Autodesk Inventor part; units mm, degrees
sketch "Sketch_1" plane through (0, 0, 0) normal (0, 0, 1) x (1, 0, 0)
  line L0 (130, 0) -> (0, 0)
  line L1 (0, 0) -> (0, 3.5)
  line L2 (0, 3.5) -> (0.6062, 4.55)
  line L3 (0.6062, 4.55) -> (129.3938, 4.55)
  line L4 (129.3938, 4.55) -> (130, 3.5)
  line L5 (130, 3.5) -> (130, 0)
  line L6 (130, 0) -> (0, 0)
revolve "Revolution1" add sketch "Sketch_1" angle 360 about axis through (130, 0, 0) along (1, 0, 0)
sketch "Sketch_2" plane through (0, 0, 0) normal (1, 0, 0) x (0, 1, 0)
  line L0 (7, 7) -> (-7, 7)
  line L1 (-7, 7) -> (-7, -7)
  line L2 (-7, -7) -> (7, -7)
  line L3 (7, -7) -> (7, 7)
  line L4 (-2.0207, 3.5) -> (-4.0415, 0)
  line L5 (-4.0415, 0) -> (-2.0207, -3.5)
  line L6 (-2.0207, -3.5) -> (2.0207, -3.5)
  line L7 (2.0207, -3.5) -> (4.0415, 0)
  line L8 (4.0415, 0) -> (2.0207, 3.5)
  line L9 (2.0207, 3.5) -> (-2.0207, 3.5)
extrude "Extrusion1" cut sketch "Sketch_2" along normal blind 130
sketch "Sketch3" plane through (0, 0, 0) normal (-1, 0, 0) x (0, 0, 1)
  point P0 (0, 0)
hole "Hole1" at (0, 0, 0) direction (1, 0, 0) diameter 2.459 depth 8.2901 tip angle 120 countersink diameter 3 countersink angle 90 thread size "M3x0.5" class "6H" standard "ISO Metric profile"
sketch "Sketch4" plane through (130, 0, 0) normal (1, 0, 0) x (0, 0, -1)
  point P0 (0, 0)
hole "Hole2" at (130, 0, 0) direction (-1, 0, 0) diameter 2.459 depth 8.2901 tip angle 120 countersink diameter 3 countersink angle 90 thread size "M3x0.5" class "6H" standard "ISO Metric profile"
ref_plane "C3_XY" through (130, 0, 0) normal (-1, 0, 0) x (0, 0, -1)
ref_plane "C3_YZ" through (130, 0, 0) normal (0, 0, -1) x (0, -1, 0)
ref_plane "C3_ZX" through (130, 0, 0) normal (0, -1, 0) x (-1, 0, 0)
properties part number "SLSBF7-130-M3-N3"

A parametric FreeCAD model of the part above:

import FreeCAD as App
import Part
import Sketcher
from FreeCAD import Vector
Q = App.Units.Quantity

doc = App.newDocument("Part")
body = doc.addObject("PartDesign::Body", "Body")

sketch1 = doc.addObject("Sketcher::SketchObject", "Sketch")
body.addObject(sketch1)
sketch1.AttachmentSupport = (doc.XY_Plane, [""])
sketch1.MapMode = "FlatFace"
sketch1.addGeometry([
    Part.LineSegment(Vector(0, 0, 0), Vector(130, 0, 0)),
    Part.LineSegment(Vector(130, 0, 0), Vector(130, 3.5, 0)),
    Part.LineSegment(Vector(130, 3.5, 0), Vector(129.4, 4.5, 0)),
    Part.LineSegment(Vector(129.4, 4.5, 0), Vector(0.6, 4.5, 0)),
    Part.LineSegment(Vector(0.6, 4.5, 0), Vector(0, 3.5, 0)),
    Part.LineSegment(Vector(0, 3.5, 0), Vector(0, 0, 0)),
], False)
sketch1.addConstraint([
    Sketcher.Constraint("Coincident", 0, 2, 1, 1),
    Sketcher.Constraint("Coincident", 1, 2, 2, 1),
    Sketcher.Constraint("Coincident", 2, 2, 3, 1),
    Sketcher.Constraint("Coincident", 3, 2, 4, 1),
    Sketcher.Constraint("Coincident", 4, 2, 5, 1),
    Sketcher.Constraint("Coincident", 5, 2, 0, 1),
    Sketcher.Constraint("Horizontal", 0),
    Sketcher.Constraint("Vertical", 1),
    Sketcher.Constraint("Horizontal", 3),
    Sketcher.Constraint("Vertical", 5),
    Sketcher.Constraint("Coincident", 5, 2, -1, 1),
    Sketcher.Constraint("Horizontal", 1, 2, 4, 2),
    Sketcher.Constraint("Equal", 2, 4),
    Sketcher.Constraint("DistanceX", 0, 1, 0, 2, 130.0),
    Sketcher.Constraint("Angle", 2, Q("119.9993 deg")),
    Sketcher.Constraint("DistanceY", 1, 1, 1, 2, 3.5),
    Sketcher.Constraint("DistanceY", -1, 1, 2, 2, 4.55),
])
revolution = doc.addObject("PartDesign::Revolution", "Revolution")
body.addObject(revolution)
revolution.Profile = sketch1
revolution.ReferenceAxis = (sketch1, ["H_Axis"])
revolution.Angle = 360

sketch2 = doc.addObject("Sketcher::SketchObject", "Sketch001")
body.addObject(sketch2)
sketch2.AttachmentSupport = (doc.YZ_Plane, [""])
sketch2.MapMode = "FlatFace"
sketch2.addGeometry([
    Part.LineSegment(Vector(7, -7, 0), Vector(7, 7, 0)),
    Part.LineSegment(Vector(7, 7, 0), Vector(-7, 7, 0)),
    Part.LineSegment(Vector(-7, 7, 0), Vector(-7, -7, 0)),
    Part.LineSegment(Vector(-7, -7, 0), Vector(7, -7, 0)),
    Part.LineSegment(Vector(-4, 0, 0), Vector(-2, 3.5, 0)),
    Part.LineSegment(Vector(-2, 3.5, 0), Vector(2, 3.5, 0)),
    Part.LineSegment(Vector(2, 3.5, 0), Vector(4, 0, 0)),
    Part.LineSegment(Vector(4, 0, 0), Vector(2, -3.5, 0)),
    Part.LineSegment(Vector(2, -3.5, 0), Vector(-2, -3.5, 0)),
    Part.LineSegment(Vector(-2, -3.5, 0), Vector(-4, 0, 0)),
], False)
sketch2.addConstraint([
    Sketcher.Constraint("Coincident", 0, 2, 1, 1),
    Sketcher.Constraint("Coincident", 1, 2, 2, 1),
    Sketcher.Constraint("Coincident", 2, 2, 3, 1),
    Sketcher.Constraint("Coincident", 3, 2, 0, 1),
    Sketcher.Constraint("Coincident", 4, 2, 5, 1),
    Sketcher.Constraint("Coincident", 5, 2, 6, 1),
    Sketcher.Constraint("Coincident", 6, 2, 7, 1),
    Sketcher.Constraint("Coincident", 7, 2, 8, 1),
    Sketcher.Constraint("Coincident", 8, 2, 9, 1),
    Sketcher.Constraint("Coincident", 9, 2, 4, 1),
    Sketcher.Constraint("Vertical", 0),
    Sketcher.Constraint("Horizontal", 1),
    Sketcher.Constraint("Vertical", 2),
    Sketcher.Constraint("Horizontal", 3),
    Sketcher.Constraint("Horizontal", 5),
    Sketcher.Constraint("Horizontal", 8),
    Sketcher.Constraint("Symmetric", 0, 2, 2, 2, -1, 1),
    Sketcher.Constraint("Symmetric", 4, 2, 7, 2, -1, 1),
    Sketcher.Constraint("Symmetric", 6, 2, 9, 2, -1, 1),
    Sketcher.Constraint("PointOnObject", 6, 2, -1),
    Sketcher.Constraint("Parallel", 6, 9),
    Sketcher.Constraint("Vertical", 5, 2, 7, 2),
    Sketcher.Constraint("Equal", 3, 0),
    Sketcher.Constraint("DistanceX", 1, 2, 1, 1, 14.0),
    Sketcher.Constraint("Angle", 4, Q("59.999 deg")),
    Sketcher.Constraint("DistanceY", 7, 2, 5, 2, 7.0),
    Sketcher.Constraint("DistanceX", 5, 1, 5, 2, 4.0414),
])
pocket1 = doc.addObject("PartDesign::Pocket", "Pocket")
body.addObject(pocket1)
pocket1.Profile = sketch2
pocket1.Length = 130
pocket1.Reversed = True

sketch3 = doc.addObject("Sketcher::SketchObject", "Sketch002")
body.addObject(sketch3)
sketch3.AttachmentSupport = (doc.YZ_Plane, [""])
sketch3.MapMode = "FlatFace"
sketch3.addGeometry(Part.Circle(Vector(0, 0, 0), Vector(0, 0, 1), 1.2), False)
sketch3.addConstraint([
    Sketcher.Constraint("Coincident", 0, 3, -1, 1),
    Sketcher.Constraint("Diameter", 0, 2.459),
])
doc.recompute()
hole = doc.addObject("PartDesign::Hole", "Hole")
body.addObject(hole)
hole.Profile = sketch3
hole.ThreadType = "None"
hole.Diameter = 2.459
hole.DepthType = "Dimension"
hole.Depth = 8.2901
hole.DrillPoint = "Angled"
hole.DrillPointAngle = 120
hole.HoleCutType = "Countersink"
hole.HoleCutDiameter = 3
hole.HoleCutCountersinkAngle = 90
hole.Reversed = True

sketch4 = doc.addObject("Sketcher::SketchObject", "Sketch003")
body.addObject(sketch4)
sketch4.AttachmentSupport = (doc.YZ_Plane, [""])
sketch4.MapMode = "FlatFace"
sketch4.AttachmentOffset = App.Placement(Vector(0, 0, 130), App.Rotation())
sketch4.addGeometry(Part.Circle(Vector(0, 0, 0), Vector(0, 0, 1), 1.2), False)
sketch4.addConstraint([
    Sketcher.Constraint("Coincident", 0, 3, -1, 1),
    Sketcher.Constraint("Diameter", 0, 2.459),
])
doc.recompute()
hole2 = doc.addObject("PartDesign::Hole", "Hole001")
body.addObject(hole2)
hole2.Profile = sketch4
hole2.ThreadType = "None"
hole2.Diameter = 2.459
hole2.DepthType = "Dimension"
hole2.Depth = 8.2901
hole2.DrillPoint = "Angled"
hole2.DrillPointAngle = 120
hole2.HoleCutType = "Countersink"
hole2.HoleCutDiameter = 3
hole2.HoleCutCountersinkAngle = 90

doc.recompute()
